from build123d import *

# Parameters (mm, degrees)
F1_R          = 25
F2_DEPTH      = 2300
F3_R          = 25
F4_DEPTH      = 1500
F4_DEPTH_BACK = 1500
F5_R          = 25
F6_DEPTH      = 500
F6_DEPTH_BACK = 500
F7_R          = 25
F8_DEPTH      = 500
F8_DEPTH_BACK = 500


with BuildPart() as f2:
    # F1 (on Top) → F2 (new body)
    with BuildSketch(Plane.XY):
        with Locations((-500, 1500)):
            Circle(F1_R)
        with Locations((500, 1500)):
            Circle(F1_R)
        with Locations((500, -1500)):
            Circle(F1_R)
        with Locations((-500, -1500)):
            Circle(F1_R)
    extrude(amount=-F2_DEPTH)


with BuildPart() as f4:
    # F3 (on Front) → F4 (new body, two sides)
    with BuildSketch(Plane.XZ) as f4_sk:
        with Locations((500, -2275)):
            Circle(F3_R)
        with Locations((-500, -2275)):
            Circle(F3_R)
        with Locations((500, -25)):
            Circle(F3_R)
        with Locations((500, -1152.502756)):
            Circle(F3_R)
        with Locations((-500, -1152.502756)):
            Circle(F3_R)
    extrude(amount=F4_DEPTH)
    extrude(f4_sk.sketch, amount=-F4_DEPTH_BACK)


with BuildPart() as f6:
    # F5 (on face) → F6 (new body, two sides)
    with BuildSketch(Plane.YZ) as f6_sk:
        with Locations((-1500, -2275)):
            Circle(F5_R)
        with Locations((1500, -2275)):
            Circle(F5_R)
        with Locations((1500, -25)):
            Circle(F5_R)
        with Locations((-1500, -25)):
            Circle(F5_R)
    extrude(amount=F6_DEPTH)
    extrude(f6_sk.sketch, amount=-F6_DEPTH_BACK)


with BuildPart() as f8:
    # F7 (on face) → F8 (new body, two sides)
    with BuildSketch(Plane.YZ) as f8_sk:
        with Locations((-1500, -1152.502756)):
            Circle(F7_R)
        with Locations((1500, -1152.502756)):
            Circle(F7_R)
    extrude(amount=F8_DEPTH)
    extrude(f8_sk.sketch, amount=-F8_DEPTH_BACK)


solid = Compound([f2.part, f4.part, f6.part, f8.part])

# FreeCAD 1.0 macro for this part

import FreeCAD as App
import Part
import Sketcher
from FreeCAD import Vector

doc = App.newDocument("Part")
params = doc.addObject("Spreadsheet::Sheet", "Params")
for row, (alias, value) in enumerate([
    ("sketch1_diameter", "50 mm"),
    ("pad1_length", "2300 mm"),
    ("sketch2_diameter", "50 mm"),
    ("pad2_length", "1500 mm"),
    ("pad2_length2", "1500 mm"),
    ("sketch3_diameter", "50 mm"),
    ("pad3_length", "500 mm"),
    ("pad3_length2", "500 mm"),
    ("sketch4_diameter", "50 mm"),
    ("pad4_length", "500 mm"),
    ("pad4_length2", "500 mm"),
], start=1):
    params.set(f"A{row}", alias)
    params.set(f"B{row}", "=" + value)
    params.setAlias(f"B{row}", alias)

body = doc.addObject("PartDesign::Body", "Body")
body.AllowCompound = True

sketch1 = body.newObject("Sketcher::SketchObject", "Sketch")
sketch1.AttachmentSupport = (doc.getObject("XY_Plane"), [""])
sketch1.MapMode = "FlatFace"
sketch1.addGeometry(Part.Circle(Vector(-500, 1500, 0), Vector(0, 0, 1), 25), False)
sketch1.addGeometry(Part.Circle(Vector(500, 1500, 0), Vector(0, 0, 1), 25), False)
sketch1.addGeometry(Part.Circle(Vector(500, -1500, 0), Vector(0, 0, 1), 25), False)
sketch1.addGeometry(Part.Circle(Vector(-500, -1500, 0), Vector(0, 0, 1), 25), False)
sketch1.addConstraint(Sketcher.Constraint("Equal", 0, 1))
sketch1.addConstraint(Sketcher.Constraint("Equal", 1, 2))
sketch1.addConstraint(Sketcher.Constraint("Equal", 2, 3))
sketch1.addConstraint(Sketcher.Constraint("Symmetric", 0, 3, 2, 3, -1, 1))
sketch1.addConstraint(Sketcher.Constraint("Symmetric", 1, 3, 3, 3, -1, 1))
sketch1.addConstraint(Sketcher.Constraint("Symmetric", 0, 3, 1, 3, -2))
sketch1.addConstraint(Sketcher.Constraint("Diameter", 0, 50.0))
sketch1.addConstraint(Sketcher.Constraint("DistanceX", 0, 3, -1, 1, 500.0))
sketch1.addConstraint(Sketcher.Constraint("DistanceY", -1, 1, 0, 3, 1500.0))
sketch1.setExpression("Constraints[6]", "Params.sketch1_diameter")
pad1 = body.newObject("PartDesign::Pad", "Pad")
pad1.Profile = sketch1
pad1.setExpression("Length", "Params.pad1_length")
pad1.Reversed = True
body2 = doc.addObject("PartDesign::Body", "Body001")
body2.AllowCompound = True

sketch2 = body2.newObject("Sketcher::SketchObject", "Sketch001")
sketch2.AttachmentSupport = (doc.getObject("XZ_Plane001"), [""])
sketch2.MapMode = "FlatFace"
sketch2.addGeometry(Part.Circle(Vector(500, -2275, 0), Vector(0, 0, 1), 25), False)
sketch2.addGeometry(Part.Circle(Vector(-500, -2275, 0), Vector(0, 0, 1), 25), False)
sketch2.addGeometry(Part.Circle(Vector(500, -25, 0), Vector(0, 0, 1), 25), False)
sketch2.addGeometry(Part.Circle(Vector(500, -1153, 0), Vector(0, 0, 1), 25), False)
sketch2.addGeometry(Part.Circle(Vector(-500, -1153, 0), Vector(0, 0, 1), 25), False)
sketch2.addConstraint(Sketcher.Constraint("Equal", 0, 1))
sketch2.addConstraint(Sketcher.Constraint("Equal", 1, 2))
sketch2.addConstraint(Sketcher.Constraint("Equal", 2, 3))
sketch2.addConstraint(Sketcher.Constraint("Equal", 3, 4))
sketch2.addConstraint(Sketcher.Constraint("Symmetric", 0, 3, 1, 3, -2))
sketch2.addConstraint(Sketcher.Constraint("Symmetric", 3, 3, 4, 3, -2))
sketch2.addConstraint(Sketcher.Constraint("Vertical", 0, 3, 2, 3))
sketch2.addConstraint(Sketcher.Constraint("Vertical", 2, 3, 3, 3))
sketch2.addConstraint(Sketcher.Constraint("Diameter", 0, 50.0))
sketch2.addConstraint(Sketcher.Constraint("DistanceX", -1, 1, 0, 3, 500.0))
sketch2.addConstraint(Sketcher.Constraint("DistanceY", 0, 3, -1, 1, 2275.0))
sketch2.addConstraint(Sketcher.Constraint("DistanceY", 2, 3, -1, 1, 25.0))
sketch2.addConstraint(Sketcher.Constraint("DistanceY", 3, 3, -1, 1, 1152.502756))
sketch2.setExpression("Constraints[8]", "Params.sketch2_diameter")
pad2 = body2.newObject("PartDesign::Pad", "Pad001")
pad2.Profile = sketch2
pad2.Type = "TwoLengths"
pad2.setExpression("Length", "Params.pad2_length")
pad2.setExpression("Length2", "Params.pad2_length2")
body3 = doc.addObject("PartDesign::Body", "Body002")
body3.AllowCompound = True

sketch3 = body3.newObject("Sketcher::SketchObject", "Sketch002")
sketch3.AttachmentSupport = (doc.getObject("YZ_Plane002"), [""])
sketch3.MapMode = "FlatFace"
sketch3.addGeometry(Part.Circle(Vector(-1500, -2275, 0), Vector(0, 0, 1), 25), False)
sketch3.addGeometry(Part.Circle(Vector(1500, -2275, 0), Vector(0, 0, 1), 25), False)
sketch3.addGeometry(Part.Circle(Vector(1500, -25, 0), Vector(0, 0, 1), 25), False)
sketch3.addGeometry(Part.Circle(Vector(-1500, -25, 0), Vector(0, 0, 1), 25), False)
sketch3.addConstraint(Sketcher.Constraint("Equal", 0, 1))
sketch3.addConstraint(Sketcher.Constraint("Equal", 1, 2))
sketch3.addConstraint(Sketcher.Constraint("Equal", 2, 3))
sketch3.addConstraint(Sketcher.Constraint("Symmetric", 0, 3, 1, 3, -2))
sketch3.addConstraint(Sketcher.Constraint("Symmetric", 2, 3, 3, 3, -2))
sketch3.addConstraint(Sketcher.Constraint("Vertical", 1, 3, 2, 3))
sketch3.addConstraint(Sketcher.Constraint("Diameter", 0, 50.0))
sketch3.addConstraint(Sketcher.Constraint("DistanceX", 0, 3, -1, 1, 1500.0))
sketch3.addConstraint(Sketcher.Constraint("DistanceY", 0, 3, -1, 1, 2275.0))
sketch3.addConstraint(Sketcher.Constraint("DistanceY", 2, 3, -1, 1, 25.0))
sketch3.setExpression("Constraints[6]", "Params.sketch3_diameter")
pad3 = body3.newObject("PartDesign::Pad", "Pad002")
pad3.Profile = sketch3
pad3.Type = "TwoLengths"
pad3.setExpression("Length", "Params.pad3_length")
pad3.setExpression("Length2", "Params.pad3_length2")
body4 = doc.addObject("PartDesign::Body", "Body003")
body4.AllowCompound = True

sketch4 = body4.newObject("Sketcher::SketchObject", "Sketch003")
sketch4.AttachmentSupport = (doc.getObject("YZ_Plane003"), [""])
sketch4.MapMode = "FlatFace"
sketch4.addGeometry(Part.Circle(Vector(-1500, -1153, 0), Vector(0, 0, 1), 25), False)
sketch4.addGeometry(Part.Circle(Vector(1500, -1153, 0), Vector(0, 0, 1), 25), False)
sketch4.addConstraint(Sketcher.Constraint("Equal", 0, 1))
sketch4.addConstraint(Sketcher.Constraint("Symmetric", 0, 3, 1, 3, -2))
sketch4.addConstraint(Sketcher.Constraint("Diameter", 0, 50.0))
sketch4.addConstraint(Sketcher.Constraint("DistanceX", 0, 3, -1, 1, 1500.0))
sketch4.addConstraint(Sketcher.Constraint("DistanceY", 0, 3, -1, 1, 1152.502756))
sketch4.setExpression("Constraints[2]", "Params.sketch4_diameter")
pad4 = body4.newObject("PartDesign::Pad", "Pad003")
pad4.Profile = sketch4
pad4.Type = "TwoLengths"
pad4.setExpression("Length", "Params.pad4_length")
pad4.setExpression("Length2", "Params.pad4_length2")

doc.recompute()
